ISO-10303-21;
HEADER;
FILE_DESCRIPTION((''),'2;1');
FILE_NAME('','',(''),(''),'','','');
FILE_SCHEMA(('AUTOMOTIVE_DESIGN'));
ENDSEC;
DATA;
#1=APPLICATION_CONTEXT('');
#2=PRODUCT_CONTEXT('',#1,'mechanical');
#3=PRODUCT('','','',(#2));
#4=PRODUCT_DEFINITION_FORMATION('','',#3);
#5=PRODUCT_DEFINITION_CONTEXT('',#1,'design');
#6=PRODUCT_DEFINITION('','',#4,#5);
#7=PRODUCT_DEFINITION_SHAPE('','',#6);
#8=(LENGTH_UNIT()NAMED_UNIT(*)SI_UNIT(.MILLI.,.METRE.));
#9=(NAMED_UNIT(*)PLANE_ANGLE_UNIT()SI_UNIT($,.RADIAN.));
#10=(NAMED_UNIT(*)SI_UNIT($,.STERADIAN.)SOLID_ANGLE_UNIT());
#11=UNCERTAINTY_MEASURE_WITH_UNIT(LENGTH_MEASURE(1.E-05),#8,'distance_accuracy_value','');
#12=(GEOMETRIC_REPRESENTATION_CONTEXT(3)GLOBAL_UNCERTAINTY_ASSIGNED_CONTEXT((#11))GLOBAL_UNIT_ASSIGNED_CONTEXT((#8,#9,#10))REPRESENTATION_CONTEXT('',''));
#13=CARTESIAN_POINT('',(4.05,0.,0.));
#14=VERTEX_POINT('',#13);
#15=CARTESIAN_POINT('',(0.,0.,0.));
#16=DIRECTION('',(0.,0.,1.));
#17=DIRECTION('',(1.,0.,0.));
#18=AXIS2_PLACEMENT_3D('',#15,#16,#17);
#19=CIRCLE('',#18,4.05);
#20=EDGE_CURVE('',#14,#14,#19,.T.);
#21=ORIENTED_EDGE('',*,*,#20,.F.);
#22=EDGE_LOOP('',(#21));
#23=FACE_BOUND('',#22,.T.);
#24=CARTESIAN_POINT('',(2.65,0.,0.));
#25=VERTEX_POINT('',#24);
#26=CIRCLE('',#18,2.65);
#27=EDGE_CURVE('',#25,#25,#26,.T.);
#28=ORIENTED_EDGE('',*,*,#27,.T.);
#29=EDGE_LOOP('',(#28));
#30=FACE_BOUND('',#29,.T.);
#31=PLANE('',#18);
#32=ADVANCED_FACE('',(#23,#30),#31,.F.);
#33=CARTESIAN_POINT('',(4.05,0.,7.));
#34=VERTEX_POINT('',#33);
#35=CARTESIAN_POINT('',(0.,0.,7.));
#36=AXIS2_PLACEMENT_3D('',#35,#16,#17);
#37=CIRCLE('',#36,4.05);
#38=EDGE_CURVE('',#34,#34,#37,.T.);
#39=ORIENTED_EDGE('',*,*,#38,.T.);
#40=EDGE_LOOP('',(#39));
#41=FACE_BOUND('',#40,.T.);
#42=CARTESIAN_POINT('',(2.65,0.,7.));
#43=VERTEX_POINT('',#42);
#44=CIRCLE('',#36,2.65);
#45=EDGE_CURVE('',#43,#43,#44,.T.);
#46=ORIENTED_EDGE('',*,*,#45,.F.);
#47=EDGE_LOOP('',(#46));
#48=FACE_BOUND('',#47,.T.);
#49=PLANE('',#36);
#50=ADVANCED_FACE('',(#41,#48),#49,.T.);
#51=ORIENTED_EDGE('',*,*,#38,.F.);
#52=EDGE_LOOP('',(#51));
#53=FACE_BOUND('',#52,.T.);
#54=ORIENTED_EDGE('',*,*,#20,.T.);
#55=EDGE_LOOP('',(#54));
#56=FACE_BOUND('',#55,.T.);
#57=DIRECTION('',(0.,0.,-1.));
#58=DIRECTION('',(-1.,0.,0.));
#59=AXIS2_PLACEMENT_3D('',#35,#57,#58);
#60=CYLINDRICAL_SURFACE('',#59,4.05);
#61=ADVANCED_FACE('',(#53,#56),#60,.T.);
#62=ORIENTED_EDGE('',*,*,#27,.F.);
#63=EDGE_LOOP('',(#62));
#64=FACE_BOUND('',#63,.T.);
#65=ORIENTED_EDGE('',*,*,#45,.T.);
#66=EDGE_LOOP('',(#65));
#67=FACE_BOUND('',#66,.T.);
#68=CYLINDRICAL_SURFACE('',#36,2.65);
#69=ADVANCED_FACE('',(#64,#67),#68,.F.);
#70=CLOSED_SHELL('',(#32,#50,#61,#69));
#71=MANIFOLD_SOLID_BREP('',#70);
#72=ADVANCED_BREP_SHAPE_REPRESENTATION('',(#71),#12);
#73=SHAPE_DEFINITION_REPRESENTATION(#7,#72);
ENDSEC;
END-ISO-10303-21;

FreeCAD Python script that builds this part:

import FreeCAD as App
import Part
import Sketcher

doc = App.newDocument("Part")
params = doc.addObject("Spreadsheet::Sheet", "Params")
for row, (alias, value) in enumerate([
    ("sketch1_diameter", "8.1 mm"),
    ("pad1_length", "7 mm"),
    ("sketch2_diameter", "5.3 mm"),
    ("hole_diameter", "5.3 mm"),
], start=1):
    params.set(f"A{row}", alias)
    params.set(f"B{row}", "=" + value)
    params.setAlias(f"B{row}", alias)

body = doc.addObject("PartDesign::Body", "Body")

# Sketch on XY plane
sketch1 = body.newObject("Sketcher::SketchObject", "Sketch")
sketch1.AttachmentSupport = (doc.getObject("XY_Plane"), [""])
sketch1.MapMode = "FlatFace"
sketch1.addGeometry(Part.Circle(App.Vector(0, 0, 0), App.Vector(0, 0, 1), 4), False)
sketch1.addConstraint([
    Sketcher.Constraint("Coincident", 0, 3, -1, 1),
    Sketcher.Constraint("Diameter", 0, 8.1),
])
sketch1.setExpression("Constraints[1]", "Params.sketch1_diameter")
pad1 = body.newObject("PartDesign::Pad", "Pad")
pad1.Profile = sketch1
pad1.setExpression("Length", "Params.pad1_length")

# Sketch on XY plane
sketch2 = body.newObject("Sketcher::SketchObject", "Sketch001")
sketch2.AttachmentSupport = (doc.getObject("XY_Plane"), [""])
sketch2.MapMode = "FlatFace"
sketch2.AttachmentOffset = App.Placement(App.Vector(0, 0, 7), App.Rotation())
sketch2.addGeometry(Part.Circle(App.Vector(0, 0, 0), App.Vector(0, 0, 1), 2.6), False)
sketch2.addConstraint([
    Sketcher.Constraint("Coincident", 0, 3, -1, 1),
    Sketcher.Constraint("Diameter", 0, 5.3),
])
sketch2.setExpression("Constraints[1]", "Params.sketch2_diameter")
doc.recompute()
hole = body.newObject("PartDesign::Hole", "Hole")
hole.Profile = sketch2
hole.ThreadType = "None"
hole.setExpression("Diameter", "Params.hole_diameter")
hole.DepthType = "ThroughAll"

doc.recompute()
